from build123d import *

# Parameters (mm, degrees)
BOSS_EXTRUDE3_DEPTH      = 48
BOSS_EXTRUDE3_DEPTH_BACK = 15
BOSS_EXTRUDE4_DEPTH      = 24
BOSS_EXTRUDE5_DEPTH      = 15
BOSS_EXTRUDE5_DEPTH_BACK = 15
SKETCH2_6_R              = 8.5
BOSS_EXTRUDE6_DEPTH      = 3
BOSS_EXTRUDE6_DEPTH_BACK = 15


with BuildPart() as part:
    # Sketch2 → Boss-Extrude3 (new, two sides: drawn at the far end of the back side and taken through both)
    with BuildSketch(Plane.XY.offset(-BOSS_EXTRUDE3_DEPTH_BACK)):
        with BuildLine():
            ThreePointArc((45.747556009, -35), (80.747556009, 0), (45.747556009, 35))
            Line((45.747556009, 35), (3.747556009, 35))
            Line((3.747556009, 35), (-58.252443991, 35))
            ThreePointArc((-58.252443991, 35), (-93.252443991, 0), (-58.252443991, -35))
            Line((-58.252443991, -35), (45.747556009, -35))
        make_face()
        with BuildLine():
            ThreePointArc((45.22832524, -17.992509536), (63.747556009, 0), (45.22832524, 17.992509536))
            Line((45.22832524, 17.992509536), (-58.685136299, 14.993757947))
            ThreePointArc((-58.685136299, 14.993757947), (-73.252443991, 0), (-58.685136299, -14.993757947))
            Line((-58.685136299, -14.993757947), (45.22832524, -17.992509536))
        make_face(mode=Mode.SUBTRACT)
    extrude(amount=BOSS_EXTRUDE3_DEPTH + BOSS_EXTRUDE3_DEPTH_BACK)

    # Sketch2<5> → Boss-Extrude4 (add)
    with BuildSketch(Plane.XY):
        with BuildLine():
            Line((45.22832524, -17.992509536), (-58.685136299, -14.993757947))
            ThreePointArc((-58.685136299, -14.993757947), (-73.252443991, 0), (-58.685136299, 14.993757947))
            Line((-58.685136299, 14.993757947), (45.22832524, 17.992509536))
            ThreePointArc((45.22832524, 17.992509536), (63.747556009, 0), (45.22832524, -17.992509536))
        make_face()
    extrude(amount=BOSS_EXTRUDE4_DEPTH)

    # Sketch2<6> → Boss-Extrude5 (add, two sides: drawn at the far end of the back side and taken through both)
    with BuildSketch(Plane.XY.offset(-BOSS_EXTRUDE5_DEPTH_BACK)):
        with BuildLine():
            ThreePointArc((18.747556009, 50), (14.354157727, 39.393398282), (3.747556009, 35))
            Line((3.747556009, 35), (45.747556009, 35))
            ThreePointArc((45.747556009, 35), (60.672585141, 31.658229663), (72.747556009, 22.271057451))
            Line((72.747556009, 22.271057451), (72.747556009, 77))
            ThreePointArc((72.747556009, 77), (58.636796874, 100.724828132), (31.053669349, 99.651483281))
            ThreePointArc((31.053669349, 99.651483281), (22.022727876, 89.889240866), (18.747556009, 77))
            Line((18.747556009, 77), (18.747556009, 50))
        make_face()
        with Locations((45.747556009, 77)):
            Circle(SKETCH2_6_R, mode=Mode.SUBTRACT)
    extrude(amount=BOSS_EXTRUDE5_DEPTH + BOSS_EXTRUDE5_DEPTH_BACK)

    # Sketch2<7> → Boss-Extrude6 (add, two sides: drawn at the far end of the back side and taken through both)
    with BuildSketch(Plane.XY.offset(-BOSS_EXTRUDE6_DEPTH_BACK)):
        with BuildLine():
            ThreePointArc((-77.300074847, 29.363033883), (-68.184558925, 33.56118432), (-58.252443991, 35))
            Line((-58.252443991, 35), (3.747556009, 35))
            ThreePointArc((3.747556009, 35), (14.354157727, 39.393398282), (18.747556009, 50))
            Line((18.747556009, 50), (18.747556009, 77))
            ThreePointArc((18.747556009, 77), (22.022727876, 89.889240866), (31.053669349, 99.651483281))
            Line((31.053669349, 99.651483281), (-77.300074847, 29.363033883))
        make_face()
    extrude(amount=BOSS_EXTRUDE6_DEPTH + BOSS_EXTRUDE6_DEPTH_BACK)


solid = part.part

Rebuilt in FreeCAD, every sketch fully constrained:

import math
import FreeCAD as App
import Part
import Sketcher
from FreeCAD import Vector

doc = App.newDocument("Part")
body = doc.addObject("PartDesign::Body", "Body")

sketch1 = body.newObject("Sketcher::SketchObject", "Sketch")
sketch1.AttachmentSupport = (doc.getObject("XY_Plane"), [""])
sketch1.MapMode = "FlatFace"
sketch1.addGeometry(Part.ArcOfCircle(Part.Circle(Vector(46, 0, 0), Vector(0, 0, 1), 35), math.radians(-90), math.radians(90)), False)
sketch1.addGeometry(Part.LineSegment(Vector(46, 35, 0), Vector(-58, 35, 0)), False)
sketch1.addGeometry(Part.ArcOfCircle(Part.Circle(Vector(-58, 0, 0), Vector(0, 0, 1), 35), math.radians(90), math.radians(270)), False)
sketch1.addGeometry(Part.LineSegment(Vector(-58, -35, 0), Vector(46, -35, 0)), False)
sketch1.addGeometry(Part.ArcOfCircle(Part.Circle(Vector(46, 0, 0), Vector(0, 0, 1), 18), math.radians(-92), math.radians(92)), False)
sketch1.addGeometry(Part.LineSegment(Vector(45, -18, 0), Vector(-59, -15, 0)), False)
sketch1.addGeometry(Part.ArcOfCircle(Part.Circle(Vector(-58, 0, 0), Vector(0, 0, 1), 15), math.radians(92), math.radians(268)), False)
sketch1.addGeometry(Part.LineSegment(Vector(-59, 15, 0), Vector(45, 18, 0)), False)
sketch1.addConstraint(Sketcher.Constraint("Tangent", 0, 2, 1, 1))
sketch1.addConstraint(Sketcher.Constraint("Tangent", 1, 2, 2, 1))
sketch1.addConstraint(Sketcher.Constraint("Tangent", 2, 2, 3, 1))
sketch1.addConstraint(Sketcher.Constraint("Tangent", 3, 2, 0, 1))
sketch1.addConstraint(Sketcher.Constraint("Tangent", 4, 1, 5, 1))
sketch1.addConstraint(Sketcher.Constraint("Tangent", 5, 2, 6, 2))
sketch1.addConstraint(Sketcher.Constraint("Tangent", 6, 1, 7, 1))
sketch1.addConstraint(Sketcher.Constraint("Tangent", 7, 2, 4, 2))
sketch1.addConstraint(Sketcher.Constraint("Horizontal", 1))
sketch1.addConstraint(Sketcher.Constraint("Horizontal", 3))
sketch1.addConstraint(Sketcher.Constraint("Coincident", 4, 3, 0, 3))
sketch1.addConstraint(Sketcher.Constraint("Coincident", 6, 3, 2, 3))
sketch1.addConstraint(Sketcher.Constraint("PointOnObject", 0, 3, -1))
sketch1.addConstraint(Sketcher.Constraint("Radius", 0, 35.0))
sketch1.addConstraint(Sketcher.Constraint("Radius", 4, 18.0))
sketch1.addConstraint(Sketcher.Constraint("Radius", 6, 15.0))
sketch1.addConstraint(Sketcher.Constraint("DistanceX", 1, 2, 1, 1, 104.0))
sketch1.addConstraint(Sketcher.Constraint("DistanceX", -1, 1, 0, 3, 45.747556))
pad1 = body.newObject("PartDesign::Pad", "Pad")
pad1.Profile = sketch1
pad1.Type = "TwoLengths"
pad1.Length = 48
pad1.Length2 = 15

sketch2 = body.newObject("Sketcher::SketchObject", "Sketch001")
sketch2.AttachmentSupport = (doc.getObject("XY_Plane"), [""])
sketch2.MapMode = "FlatFace"
sketch2.addGeometry(Part.LineSegment(Vector(-59, -15, 0), Vector(45, -18, 0)), False)
sketch2.addGeometry(Part.ArcOfCircle(Part.Circle(Vector(46, 0, 0), Vector(0, 0, 1), 18), math.radians(-92), math.radians(92)), False)
sketch2.addGeometry(Part.LineSegment(Vector(45, 18, 0), Vector(-59, 15, 0)), False)
sketch2.addGeometry(Part.ArcOfCircle(Part.Circle(Vector(-58, 0, 0), Vector(0, 0, 1), 15), math.radians(92), math.radians(268)), False)
sketch2.addConstraint(Sketcher.Constraint("Tangent", 0, 2, 1, 1))
sketch2.addConstraint(Sketcher.Constraint("Tangent", 1, 2, 2, 1))
sketch2.addConstraint(Sketcher.Constraint("Tangent", 2, 2, 3, 1))
sketch2.addConstraint(Sketcher.Constraint("Tangent", 3, 2, 0, 1))
sketch2.addConstraint(Sketcher.Constraint("Symmetric", 0, 2, 1, 2, -1))
sketch2.addConstraint(Sketcher.Constraint("Radius", 1, 18.0))
sketch2.addConstraint(Sketcher.Constraint("Radius", 3, 15.0))
sketch2.addConstraint(Sketcher.Constraint("DistanceX", 3, 3, 1, 3, 104.0))
sketch2.addConstraint(Sketcher.Constraint("DistanceX", -1, 1, 1, 3, 45.747556))
pad2 = body.newObject("PartDesign::Pad", "Pad001")
pad2.Profile = sketch2
pad2.Length = 24

sketch3 = body.newObject("Sketcher::SketchObject", "Sketch002")
sketch3.AttachmentSupport = (doc.getObject("XY_Plane"), [""])
sketch3.MapMode = "FlatFace"
sketch3.addGeometry(Part.ArcOfCircle(Part.Circle(Vector(4, 50, 0), Vector(0, 0, 1), 15), math.radians(-90), math.radians(0)), False)
sketch3.addGeometry(Part.LineSegment(Vector(4, 35, 0), Vector(46, 35, 0)), False)
sketch3.addGeometry(Part.ArcOfCircle(Part.Circle(Vector(46, 0, 0), Vector(0, 0, 1), 35), math.radians(40), math.radians(90)), False)
sketch3.addGeometry(Part.LineSegment(Vector(73, 22, 0), Vector(73, 77, 0)), False)
sketch3.addGeometry(Part.ArcOfCircle(Part.Circle(Vector(46, 77, 0), Vector(0, 0, 1), 27), math.radians(0), math.radians(123)), False)
sketch3.addGeometry(Part.ArcOfCircle(Part.Circle(Vector(46, 77, 0), Vector(0, 0, 1), 27), math.radians(123), math.radians(180)), False)
sketch3.addGeometry(Part.LineSegment(Vector(19, 77, 0), Vector(19, 50, 0)), False)
sketch3.addGeometry(Part.Circle(Vector(46, 77, 0), Vector(0, 0, 1), 8), False)
sketch3.addConstraint(Sketcher.Constraint("Tangent", 0, 1, 1, 1))
sketch3.addConstraint(Sketcher.Constraint("Tangent", 1, 2, 2, 2))
sketch3.addConstraint(Sketcher.Constraint("Coincident", 2, 1, 3, 1))
sketch3.addConstraint(Sketcher.Constraint("Tangent", 3, 2, 4, 1))
sketch3.addConstraint(Sketcher.Constraint("Tangent", 4, 2, 5, 1))
sketch3.addConstraint(Sketcher.Constraint("Tangent", 5, 2, 6, 1))
sketch3.addConstraint(Sketcher.Constraint("Tangent", 6, 2, 0, 2))
sketch3.addConstraint(Sketcher.Constraint("Horizontal", 1))
sketch3.addConstraint(Sketcher.Constraint("Vertical", 3))
sketch3.addConstraint(Sketcher.Constraint("Vertical", 6))
sketch3.addConstraint(Sketcher.Constraint("Coincident", 7, 3, 4, 3))
sketch3.addConstraint(Sketcher.Constraint("Equal", 4, 5))
sketch3.addConstraint(Sketcher.Constraint("PointOnObject", 2, 3, -1))
sketch3.addConstraint(Sketcher.Constraint("Vertical", 2, 3, 4, 3))
sketch3.addConstraint(Sketcher.Constraint("Diameter", 7, 17.0))
sketch3.addConstraint(Sketcher.Constraint("Radius", 0, 15.0))
sketch3.addConstraint(Sketcher.Constraint("Radius", 2, 35.0))
sketch3.addConstraint(Sketcher.Constraint("Radius", 4, 27.0))
sketch3.addConstraint(Sketcher.Constraint("DistanceY", 6, 2, 6, 1, 27.0))
sketch3.addConstraint(Sketcher.Constraint("DistanceX", -1, 1, 4, 2, 31.053669))
sketch3.addConstraint(Sketcher.Constraint("DistanceX", -1, 1, 0, 3, 3.747556))
pad3 = body.newObject("PartDesign::Pad", "Pad002")
pad3.Profile = sketch3
pad3.Type = "TwoLengths"
pad3.Length = 15
pad3.Length2 = 15

sketch4 = body.newObject("Sketcher::SketchObject", "Sketch003")
sketch4.AttachmentSupport = (doc.getObject("XY_Plane"), [""])
sketch4.MapMode = "FlatFace"
sketch4.addGeometry(Part.ArcOfCircle(Part.Circle(Vector(-58, 0, 0), Vector(0, 0, 1), 35), math.radians(90), math.radians(123)), False)
sketch4.addGeometry(Part.LineSegment(Vector(-58, 35, 0), Vector(4, 35, 0)), False)
sketch4.addGeometry(Part.ArcOfCircle(Part.Circle(Vector(4, 50, 0), Vector(0, 0, 1), 15), math.radians(-90), math.radians(0)), False)
sketch4.addGeometry(Part.LineSegment(Vector(19, 50, 0), Vector(19, 77, 0)), False)
sketch4.addGeometry(Part.ArcOfCircle(Part.Circle(Vector(46, 77, 0), Vector(0, 0, 1), 27), math.radians(123), math.radians(180)), False)
sketch4.addGeometry(Part.LineSegment(Vector(31, 100, 0), Vector(-77, 29, 0)), False)
sketch4.addConstraint(Sketcher.Constraint("Tangent", 0, 1, 1, 1))
sketch4.addConstraint(Sketcher.Constraint("Tangent", 1, 2, 2, 1))
sketch4.addConstraint(Sketcher.Constraint("Tangent", 2, 2, 3, 1))
sketch4.addConstraint(Sketcher.Constraint("Tangent", 3, 2, 4, 2))
sketch4.addConstraint(Sketcher.Constraint("Tangent", 4, 1, 5, 1))
sketch4.addConstraint(Sketcher.Constraint("Tangent", 5, 2, 0, 2))
sketch4.addConstraint(Sketcher.Constraint("Horizontal", 1))
sketch4.addConstraint(Sketcher.Constraint("Vertical", 3))
sketch4.addConstraint(Sketcher.Constraint("PointOnObject", 0, 3, -1))
sketch4.addConstraint(Sketcher.Constraint("Radius", 0, 35.0))
sketch4.addConstraint(Sketcher.Constraint("Radius", 2, 15.0))
sketch4.addConstraint(Sketcher.Constraint("Radius", 4, 27.0))
sketch4.addConstraint(Sketcher.Constraint("DistanceX", 1, 1, 1, 2, 62.0))
sketch4.addConstraint(Sketcher.Constraint("DistanceY", 3, 1, 3, 2, 27.0))
sketch4.addConstraint(Sketcher.Constraint("DistanceX", -1, 1, 4, 1, 31.053669))
pad4 = body.newObject("PartDesign::Pad", "Pad003")
pad4.Profile = sketch4
pad4.Type = "TwoLengths"
pad4.Length = 3
pad4.Length2 = 15

doc.recompute()
